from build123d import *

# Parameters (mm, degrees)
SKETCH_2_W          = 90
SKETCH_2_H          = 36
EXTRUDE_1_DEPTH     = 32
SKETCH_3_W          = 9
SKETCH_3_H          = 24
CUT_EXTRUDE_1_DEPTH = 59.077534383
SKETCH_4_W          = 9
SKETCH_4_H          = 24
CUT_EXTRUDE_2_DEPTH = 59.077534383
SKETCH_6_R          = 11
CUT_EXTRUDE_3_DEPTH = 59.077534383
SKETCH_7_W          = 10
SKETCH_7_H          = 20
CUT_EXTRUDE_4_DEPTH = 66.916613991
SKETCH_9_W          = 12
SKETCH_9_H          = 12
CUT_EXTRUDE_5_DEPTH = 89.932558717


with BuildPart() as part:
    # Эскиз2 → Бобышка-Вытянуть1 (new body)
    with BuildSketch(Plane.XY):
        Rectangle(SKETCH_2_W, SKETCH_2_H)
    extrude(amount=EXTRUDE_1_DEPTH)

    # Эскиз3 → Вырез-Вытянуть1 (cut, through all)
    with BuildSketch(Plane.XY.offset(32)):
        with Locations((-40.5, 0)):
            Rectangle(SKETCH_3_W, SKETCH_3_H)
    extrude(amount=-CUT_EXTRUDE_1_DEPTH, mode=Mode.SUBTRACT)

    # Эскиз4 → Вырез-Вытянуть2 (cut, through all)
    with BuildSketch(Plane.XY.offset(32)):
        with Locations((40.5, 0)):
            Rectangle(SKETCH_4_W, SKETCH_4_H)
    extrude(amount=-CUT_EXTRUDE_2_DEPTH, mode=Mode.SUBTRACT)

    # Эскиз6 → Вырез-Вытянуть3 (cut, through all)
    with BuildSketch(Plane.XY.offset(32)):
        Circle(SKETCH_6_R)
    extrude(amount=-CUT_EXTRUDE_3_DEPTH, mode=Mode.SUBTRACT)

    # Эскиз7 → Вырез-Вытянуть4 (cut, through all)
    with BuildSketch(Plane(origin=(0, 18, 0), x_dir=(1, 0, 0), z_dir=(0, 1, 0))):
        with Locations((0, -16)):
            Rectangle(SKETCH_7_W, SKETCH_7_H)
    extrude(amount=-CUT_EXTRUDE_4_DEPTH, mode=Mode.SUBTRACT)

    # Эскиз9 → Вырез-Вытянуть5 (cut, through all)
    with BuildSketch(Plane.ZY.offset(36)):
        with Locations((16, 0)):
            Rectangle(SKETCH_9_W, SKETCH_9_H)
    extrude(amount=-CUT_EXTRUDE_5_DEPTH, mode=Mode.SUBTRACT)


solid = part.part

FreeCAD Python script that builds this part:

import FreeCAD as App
import Part
import Sketcher
from FreeCAD import Vector


def add_polygon(sketch, points):
    """Adds a closed chain of lines whose ends are joined by coincident constraints."""
    first, n = sketch.GeometryCount, len(points)
    for a, b in zip(points, points[1:] + points[:1]):
        sketch.addGeometry(Part.LineSegment(App.Vector(*a, 0), App.Vector(*b, 0)), False)
    for i in range(n):
        sketch.addConstraint(Sketcher.Constraint("Coincident", first + i, 2, first + (i + 1) % n, 1))

doc = App.newDocument("Part")
body = doc.addObject("PartDesign::Body", "Body")

# Sketch on XY plane
sketch1 = body.newObject("Sketcher::SketchObject", "Sketch")
sketch1.AttachmentSupport = (doc.getObject("XY_Plane"), [""])
sketch1.MapMode = "FlatFace"
add_polygon(sketch1, [(-45, 18), (-45, -18), (45, -18), (45, 18)])  # lines 0-3
sketch1.addConstraint(Sketcher.Constraint("Vertical", 0))
sketch1.addConstraint(Sketcher.Constraint("Horizontal", 1))
sketch1.addConstraint(Sketcher.Constraint("Vertical", 2))
sketch1.addConstraint(Sketcher.Constraint("Horizontal", 3))
sketch1.addConstraint(Sketcher.Constraint("Symmetric", 0, 2, 2, 2, -1, 1))
sketch1.addConstraint(Sketcher.Constraint("DistanceX", 1, 1, 1, 2, 90.0))
sketch1.addConstraint(Sketcher.Constraint("DistanceY", 0, 2, 0, 1, 36.0))
pad1 = body.newObject("PartDesign::Pad", "Pad")
pad1.Profile = sketch1
pad1.Length = 32

# Sketch on XY plane
sketch2 = body.newObject("Sketcher::SketchObject", "Sketch001")
sketch2.AttachmentSupport = (doc.getObject("XY_Plane"), [""])
sketch2.MapMode = "FlatFace"
sketch2.AttachmentOffset = App.Placement(Vector(0, 0, 32), App.Rotation())
add_polygon(sketch2, [(-45, 12), (-45, -12), (-36, -12), (-36, 12)])  # lines 0-3
sketch2.addConstraint(Sketcher.Constraint("Vertical", 0))
sketch2.addConstraint(Sketcher.Constraint("Horizontal", 1))
sketch2.addConstraint(Sketcher.Constraint("Vertical", 2))
sketch2.addConstraint(Sketcher.Constraint("Horizontal", 3))
sketch2.addConstraint(Sketcher.Constraint("DistanceX", 1, 1, 1, 2, 9.0))
sketch2.addConstraint(Sketcher.Constraint("DistanceY", 0, 2, 0, 1, 24.0))
sketch2.addConstraint(Sketcher.Constraint("DistanceX", 0, 2, -1, 1, 45.0))
sketch2.addConstraint(Sketcher.Constraint("DistanceY", 0, 2, -1, 1, 12.0))
pocket1 = body.newObject("PartDesign::Pocket", "Pocket")
pocket1.Profile = sketch2
pocket1.Type = "ThroughAll"

# Sketch on XY plane
sketch3 = body.newObject("Sketcher::SketchObject", "Sketch002")
sketch3.AttachmentSupport = (doc.getObject("XY_Plane"), [""])
sketch3.MapMode = "FlatFace"
sketch3.AttachmentOffset = App.Placement(Vector(0, 0, 32), App.Rotation())
add_polygon(sketch3, [(36, 12), (36, -12), (45, -12), (45, 12)])  # lines 0-3
sketch3.addConstraint(Sketcher.Constraint("Vertical", 0))
sketch3.addConstraint(Sketcher.Constraint("Horizontal", 1))
sketch3.addConstraint(Sketcher.Constraint("Vertical", 2))
sketch3.addConstraint(Sketcher.Constraint("Horizontal", 3))
sketch3.addConstraint(Sketcher.Constraint("DistanceX", 1, 1, 1, 2, 9.0))
sketch3.addConstraint(Sketcher.Constraint("DistanceY", 0, 2, 0, 1, 24.0))
sketch3.addConstraint(Sketcher.Constraint("DistanceX", -1, 1, 0, 2, 36.0))
sketch3.addConstraint(Sketcher.Constraint("DistanceY", 0, 2, -1, 1, 12.0))
pocket2 = body.newObject("PartDesign::Pocket", "Pocket001")
pocket2.Profile = sketch3
pocket2.Type = "ThroughAll"

# Sketch on XY plane
sketch4 = body.newObject("Sketcher::SketchObject", "Sketch003")
sketch4.AttachmentSupport = (doc.getObject("XY_Plane"), [""])
sketch4.MapMode = "FlatFace"
sketch4.AttachmentOffset = App.Placement(Vector(0, 0, 32), App.Rotation())
sketch4.addGeometry(Part.Circle(Vector(0, 0, 0), Vector(0, 0, 1), 11), False)
sketch4.addConstraint(Sketcher.Constraint("Coincident", 0, 3, -1, 1))
sketch4.addConstraint(Sketcher.Constraint("Diameter", 0, 22.0))
pocket3 = body.newObject("PartDesign::Pocket", "Pocket002")
pocket3.Profile = sketch4
pocket3.Type = "ThroughAll"

# Sketch on XZ plane
sketch5 = body.newObject("Sketcher::SketchObject", "Sketch004")
sketch5.AttachmentSupport = (doc.getObject("XZ_Plane"), [""])
sketch5.MapMode = "FlatFace"
sketch5.AttachmentOffset = App.Placement(Vector(0, 0, -18), App.Rotation())
add_polygon(sketch5, [(-5, 6), (-5, 26), (5, 26), (5, 6)])  # lines 0-3
sketch5.addConstraint(Sketcher.Constraint("Vertical", 0))
sketch5.addConstraint(Sketcher.Constraint("Horizontal", 1))
sketch5.addConstraint(Sketcher.Constraint("Vertical", 2))
sketch5.addConstraint(Sketcher.Constraint("Horizontal", 3))
sketch5.addConstraint(Sketcher.Constraint("DistanceX", 1, 1, 1, 2, 10.0))
sketch5.addConstraint(Sketcher.Constraint("DistanceY", 0, 1, 0, 2, 20.0))
sketch5.addConstraint(Sketcher.Constraint("DistanceX", 0, 2, -1, 1, 5.0))
sketch5.addConstraint(Sketcher.Constraint("DistanceY", -1, 1, 0, 2, 26.0))
pocket4 = body.newObject("PartDesign::Pocket", "Pocket003")
pocket4.Profile = sketch5
pocket4.Type = "ThroughAll"
pocket4.Reversed = True

# Sketch on YZ plane
sketch6 = body.newObject("Sketcher::SketchObject", "Sketch005")
sketch6.AttachmentSupport = (doc.getObject("YZ_Plane"), [""])
sketch6.MapMode = "FlatFace"
sketch6.AttachmentOffset = App.Placement(Vector(0, 0, -36), App.Rotation())
add_polygon(sketch6, [(6, 10), (-6, 10), (-6, 22), (6, 22)])  # lines 0-3
sketch6.addConstraint(Sketcher.Constraint("Horizontal", 0))
sketch6.addConstraint(Sketcher.Constraint("Vertical", 1))
sketch6.addConstraint(Sketcher.Constraint("Horizontal", 2))
sketch6.addConstraint(Sketcher.Constraint("Vertical", 3))
sketch6.addConstraint(Sketcher.Constraint("Equal", 2, 1))
sketch6.addConstraint(Sketcher.Constraint("DistanceX", 0, 2, 0, 1, 12.0))
sketch6.addConstraint(Sketcher.Constraint("DistanceX", 0, 2, -1, 1, 6.0))
sketch6.addConstraint(Sketcher.Constraint("DistanceY", -1, 1, 0, 2, 10.0))
pocket5 = body.newObject("PartDesign::Pocket", "Pocket004")
pocket5.Profile = sketch6
pocket5.Type = "ThroughAll"
pocket5.Reversed = True

doc.recompute()
